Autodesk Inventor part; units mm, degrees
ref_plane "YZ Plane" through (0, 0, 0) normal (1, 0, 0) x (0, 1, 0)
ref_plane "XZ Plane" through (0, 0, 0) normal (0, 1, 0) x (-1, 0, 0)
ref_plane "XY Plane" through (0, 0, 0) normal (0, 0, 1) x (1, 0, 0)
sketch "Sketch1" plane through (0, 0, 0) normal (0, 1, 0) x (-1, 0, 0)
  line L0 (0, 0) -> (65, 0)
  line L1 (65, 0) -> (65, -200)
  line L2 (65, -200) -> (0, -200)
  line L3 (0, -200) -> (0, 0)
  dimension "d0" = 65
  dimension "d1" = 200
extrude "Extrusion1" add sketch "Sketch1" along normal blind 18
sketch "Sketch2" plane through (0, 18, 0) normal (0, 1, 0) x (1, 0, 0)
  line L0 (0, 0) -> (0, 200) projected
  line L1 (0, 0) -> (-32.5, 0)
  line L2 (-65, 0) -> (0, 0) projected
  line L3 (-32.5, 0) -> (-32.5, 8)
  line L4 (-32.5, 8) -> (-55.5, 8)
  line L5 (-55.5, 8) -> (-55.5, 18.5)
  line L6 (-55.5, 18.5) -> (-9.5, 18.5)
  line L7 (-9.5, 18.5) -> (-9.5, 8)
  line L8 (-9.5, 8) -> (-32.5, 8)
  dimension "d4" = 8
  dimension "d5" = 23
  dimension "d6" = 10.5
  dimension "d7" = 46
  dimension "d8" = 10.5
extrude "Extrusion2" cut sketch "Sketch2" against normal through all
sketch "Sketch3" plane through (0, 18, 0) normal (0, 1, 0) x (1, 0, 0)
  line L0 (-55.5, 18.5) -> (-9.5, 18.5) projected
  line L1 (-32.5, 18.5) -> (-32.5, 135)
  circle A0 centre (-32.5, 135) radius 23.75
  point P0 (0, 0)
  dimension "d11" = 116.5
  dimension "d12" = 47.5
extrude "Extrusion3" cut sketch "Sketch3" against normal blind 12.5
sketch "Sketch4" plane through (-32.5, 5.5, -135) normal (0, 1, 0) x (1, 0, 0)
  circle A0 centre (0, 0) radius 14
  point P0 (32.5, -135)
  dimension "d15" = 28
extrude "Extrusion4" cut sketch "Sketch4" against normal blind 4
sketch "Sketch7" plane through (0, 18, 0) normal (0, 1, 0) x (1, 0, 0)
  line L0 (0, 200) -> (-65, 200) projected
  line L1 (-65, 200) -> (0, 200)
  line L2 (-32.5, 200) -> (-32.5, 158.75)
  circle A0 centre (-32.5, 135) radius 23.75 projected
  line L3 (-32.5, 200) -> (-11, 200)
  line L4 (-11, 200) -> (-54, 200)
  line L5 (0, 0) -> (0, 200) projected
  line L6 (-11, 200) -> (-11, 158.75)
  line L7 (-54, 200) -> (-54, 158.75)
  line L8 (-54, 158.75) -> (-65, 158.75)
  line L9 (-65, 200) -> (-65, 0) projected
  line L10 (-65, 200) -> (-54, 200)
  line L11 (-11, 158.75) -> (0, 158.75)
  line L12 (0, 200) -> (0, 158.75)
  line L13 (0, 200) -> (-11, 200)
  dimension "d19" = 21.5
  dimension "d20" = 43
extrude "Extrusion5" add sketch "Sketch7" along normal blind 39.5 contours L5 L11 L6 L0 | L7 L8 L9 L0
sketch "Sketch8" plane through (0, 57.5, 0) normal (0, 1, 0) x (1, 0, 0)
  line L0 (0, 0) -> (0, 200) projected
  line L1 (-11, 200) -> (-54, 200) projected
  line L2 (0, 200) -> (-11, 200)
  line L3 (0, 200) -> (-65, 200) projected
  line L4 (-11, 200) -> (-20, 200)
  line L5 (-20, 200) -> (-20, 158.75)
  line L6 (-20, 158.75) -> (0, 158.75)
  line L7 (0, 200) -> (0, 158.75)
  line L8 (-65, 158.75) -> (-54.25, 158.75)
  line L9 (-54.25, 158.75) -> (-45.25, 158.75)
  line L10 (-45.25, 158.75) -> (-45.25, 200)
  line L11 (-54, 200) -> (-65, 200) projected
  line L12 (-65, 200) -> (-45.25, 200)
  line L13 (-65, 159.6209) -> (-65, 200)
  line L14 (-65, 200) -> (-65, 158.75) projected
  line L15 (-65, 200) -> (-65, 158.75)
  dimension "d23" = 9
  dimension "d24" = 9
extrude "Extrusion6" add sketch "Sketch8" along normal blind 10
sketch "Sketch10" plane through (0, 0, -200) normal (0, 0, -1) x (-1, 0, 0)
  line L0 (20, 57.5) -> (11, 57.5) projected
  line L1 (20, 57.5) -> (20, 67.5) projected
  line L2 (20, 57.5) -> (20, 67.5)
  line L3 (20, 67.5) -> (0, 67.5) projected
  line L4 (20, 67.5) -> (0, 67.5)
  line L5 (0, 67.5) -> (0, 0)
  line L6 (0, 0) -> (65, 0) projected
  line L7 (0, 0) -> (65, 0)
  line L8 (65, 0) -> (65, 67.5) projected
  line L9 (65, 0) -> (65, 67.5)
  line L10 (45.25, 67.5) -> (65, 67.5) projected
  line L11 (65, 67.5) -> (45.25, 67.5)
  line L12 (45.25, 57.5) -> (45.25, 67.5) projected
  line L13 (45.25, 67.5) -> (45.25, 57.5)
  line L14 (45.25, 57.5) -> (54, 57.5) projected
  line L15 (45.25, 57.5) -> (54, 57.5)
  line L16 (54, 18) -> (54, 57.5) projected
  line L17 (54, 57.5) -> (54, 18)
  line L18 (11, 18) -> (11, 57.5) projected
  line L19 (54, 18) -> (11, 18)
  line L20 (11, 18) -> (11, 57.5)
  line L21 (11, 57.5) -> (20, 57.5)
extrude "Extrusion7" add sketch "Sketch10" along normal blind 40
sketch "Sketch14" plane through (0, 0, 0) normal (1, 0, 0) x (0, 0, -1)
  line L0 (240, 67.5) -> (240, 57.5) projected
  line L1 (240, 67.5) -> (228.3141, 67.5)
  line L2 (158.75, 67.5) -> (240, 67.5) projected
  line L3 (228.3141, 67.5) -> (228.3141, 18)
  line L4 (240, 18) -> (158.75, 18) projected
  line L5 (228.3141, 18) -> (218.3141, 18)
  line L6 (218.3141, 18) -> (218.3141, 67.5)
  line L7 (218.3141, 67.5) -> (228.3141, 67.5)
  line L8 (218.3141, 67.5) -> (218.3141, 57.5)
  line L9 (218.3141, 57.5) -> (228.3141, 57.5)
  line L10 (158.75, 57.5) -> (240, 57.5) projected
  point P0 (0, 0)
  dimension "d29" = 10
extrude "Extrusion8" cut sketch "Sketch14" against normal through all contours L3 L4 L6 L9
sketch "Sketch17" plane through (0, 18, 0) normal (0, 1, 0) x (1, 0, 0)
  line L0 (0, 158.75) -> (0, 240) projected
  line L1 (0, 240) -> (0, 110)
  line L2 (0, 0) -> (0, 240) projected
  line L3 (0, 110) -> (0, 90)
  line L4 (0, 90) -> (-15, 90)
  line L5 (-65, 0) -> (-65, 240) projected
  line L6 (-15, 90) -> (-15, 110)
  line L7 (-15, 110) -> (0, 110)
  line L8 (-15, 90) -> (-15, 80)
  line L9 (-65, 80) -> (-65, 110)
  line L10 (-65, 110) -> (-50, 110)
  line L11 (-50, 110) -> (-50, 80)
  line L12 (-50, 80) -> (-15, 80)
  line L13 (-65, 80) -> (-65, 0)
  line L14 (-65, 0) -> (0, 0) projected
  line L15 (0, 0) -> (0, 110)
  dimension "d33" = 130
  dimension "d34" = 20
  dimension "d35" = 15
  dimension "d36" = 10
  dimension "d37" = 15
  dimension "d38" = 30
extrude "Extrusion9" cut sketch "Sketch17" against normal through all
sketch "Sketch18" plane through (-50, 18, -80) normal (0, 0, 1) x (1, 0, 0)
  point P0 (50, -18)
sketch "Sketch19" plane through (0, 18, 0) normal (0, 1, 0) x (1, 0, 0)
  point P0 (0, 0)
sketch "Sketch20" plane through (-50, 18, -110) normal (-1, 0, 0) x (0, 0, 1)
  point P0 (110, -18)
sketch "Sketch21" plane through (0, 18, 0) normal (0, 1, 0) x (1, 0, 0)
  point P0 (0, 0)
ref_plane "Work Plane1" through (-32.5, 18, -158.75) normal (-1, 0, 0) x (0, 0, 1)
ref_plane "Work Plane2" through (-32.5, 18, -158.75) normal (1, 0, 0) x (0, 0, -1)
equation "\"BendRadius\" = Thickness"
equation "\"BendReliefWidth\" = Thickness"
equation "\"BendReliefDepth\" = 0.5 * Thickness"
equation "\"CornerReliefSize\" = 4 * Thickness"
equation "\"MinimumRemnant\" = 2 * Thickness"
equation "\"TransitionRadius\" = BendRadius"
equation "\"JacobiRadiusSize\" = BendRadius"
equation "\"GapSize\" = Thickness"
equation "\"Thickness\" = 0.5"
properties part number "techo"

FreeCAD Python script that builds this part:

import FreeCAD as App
import Part
import Sketcher


def add_polygon(sketch, points):
    """Adds a closed chain of lines whose ends are joined by coincident constraints."""
    first, n = sketch.GeometryCount, len(points)
    for a, b in zip(points, points[1:] + points[:1]):
        sketch.addGeometry(Part.LineSegment(App.Vector(*a, 0), App.Vector(*b, 0)), False)
    for i in range(n):
        sketch.addConstraint(Sketcher.Constraint("Coincident", first + i, 2, first + (i + 1) % n, 1))

doc = App.newDocument("Part")
body = doc.addObject("PartDesign::Body", "Body")

# Sketch on XZ plane
sketch1 = body.newObject("Sketcher::SketchObject", "Sketch")
sketch1.AttachmentSupport = (doc.getObject("XZ_Plane"), [""])
sketch1.MapMode = "FlatFace"
add_polygon(sketch1, [(-65, 0), (0, 0), (0, -200), (-65, -200)])  # lines 0-3
sketch1.addConstraint([
    Sketcher.Constraint("Horizontal", 0),
    Sketcher.Constraint("Vertical", 1),
    Sketcher.Constraint("Horizontal", 2),
    Sketcher.Constraint("Vertical", 3),
    Sketcher.Constraint("Coincident", 0, 2, -1, 1),
    Sketcher.Constraint("DistanceX", 0, 1, 0, 2, 65.0),
    Sketcher.Constraint("DistanceY", 1, 2, 1, 1, 200.0),
])
pad1 = body.newObject("PartDesign::Pad", "Pad")
pad1.Profile = sketch1
pad1.Length = 18
pad1.Reversed = True

# Sketch on XZ plane
sketch2 = body.newObject("Sketcher::SketchObject", "Sketch001")
sketch2.AttachmentSupport = (doc.getObject("XZ_Plane"), [""])
sketch2.MapMode = "FlatFace"
sketch2.AttachmentOffset = App.Placement(App.Vector(0, 0, -18), App.Rotation())
add_polygon(sketch2, [(-56, -8), (-10, -8), (-10, -18), (-56, -18)])  # lines 0-3
sketch2.addConstraint([
    Sketcher.Constraint("Horizontal", 0),
    Sketcher.Constraint("Vertical", 1),
    Sketcher.Constraint("Horizontal", 2),
    Sketcher.Constraint("Vertical", 3),
    Sketcher.Constraint("DistanceX", 0, 1, 0, 2, 46.0),
    Sketcher.Constraint("DistanceY", 1, 2, 1, 1, 10.5),
    Sketcher.Constraint("DistanceY", 0, 2, -1, 1, 8.0),
    Sketcher.Constraint("DistanceX", 0, 2, -1, 1, 9.5),
])
pocket1 = body.newObject("PartDesign::Pocket", "Pocket")
pocket1.Profile = sketch2
pocket1.Type = "ThroughAll"
pocket1.Reversed = True

# Sketch on XZ plane
sketch3 = body.newObject("Sketcher::SketchObject", "Sketch002")
sketch3.AttachmentSupport = (doc.getObject("XZ_Plane"), [""])
sketch3.MapMode = "FlatFace"
sketch3.AttachmentOffset = App.Placement(App.Vector(0, 0, -18), App.Rotation())
sketch3.addGeometry(Part.Circle(App.Vector(-32, -135, 0), App.Vector(0, 0, 1), 24), False)
sketch3.addConstraint([
    Sketcher.Constraint("Diameter", 0, 47.5),
    Sketcher.Constraint("DistanceY", 0, 3, -1, 1, 135.0),
    Sketcher.Constraint("DistanceX", 0, 3, -1, 1, 32.5),
])
pocket2 = body.newObject("PartDesign::Pocket", "Pocket001")
pocket2.Profile = sketch3
pocket2.Length = 12.5
pocket2.Reversed = True

# Sketch on XZ plane
sketch4 = body.newObject("Sketcher::SketchObject", "Sketch003")
sketch4.AttachmentSupport = (doc.getObject("XZ_Plane"), [""])
sketch4.MapMode = "FlatFace"
sketch4.AttachmentOffset = App.Placement(App.Vector(0, 0, -5.5), App.Rotation())
sketch4.addGeometry(Part.Circle(App.Vector(-32, -135, 0), App.Vector(0, 0, 1), 14), False)
sketch4.addConstraint([
    Sketcher.Constraint("Diameter", 0, 28.0),
    Sketcher.Constraint("DistanceY", 0, 3, -1, 1, 135.0),
    Sketcher.Constraint("DistanceX", 0, 3, -1, 1, 32.5),
])
pocket3 = body.newObject("PartDesign::Pocket", "Pocket002")
pocket3.Profile = sketch4
pocket3.Length = 4
pocket3.Reversed = True

# Sketch on XZ plane
sketch5 = body.newObject("Sketcher::SketchObject", "Sketch004")
sketch5.AttachmentSupport = (doc.getObject("XZ_Plane"), [""])
sketch5.MapMode = "FlatFace"
sketch5.AttachmentOffset = App.Placement(App.Vector(0, 0, -18), App.Rotation())
add_polygon(sketch5, [(0, -159), (0, -200), (-11, -200), (-11, -159)])  # lines 0-3
add_polygon(sketch5, [(-54, -159), (-54, -200), (-65, -200), (-65, -159)])  # lines 4-7
sketch5.addConstraint([
    Sketcher.Constraint("Vertical", 0),
    Sketcher.Constraint("Horizontal", 1),
    Sketcher.Constraint("Vertical", 2),
    Sketcher.Constraint("Horizontal", 3),
    Sketcher.Constraint("Vertical", 4),
    Sketcher.Constraint("Horizontal", 5),
    Sketcher.Constraint("Vertical", 6),
    Sketcher.Constraint("Horizontal", 7),
    Sketcher.Constraint("PointOnObject", 0, 2, -2),
    Sketcher.Constraint("Horizontal", 1, 2, 4, 2),
    Sketcher.Constraint("Horizontal", 3, 2, 6, 2),
    Sketcher.Constraint("Equal", 3, 5),
    Sketcher.Constraint("DistanceX", 4, 2, 1, 2, 43.0),
    Sketcher.Constraint("DistanceX", 1, 2, 1, 1, 11.0),
    Sketcher.Constraint("DistanceY", 0, 2, -1, 1, 200.0),
    Sketcher.Constraint("DistanceY", 0, 2, 0, 1, 41.25),
])
pad2 = body.newObject("PartDesign::Pad", "Pad001")
pad2.Profile = sketch5
pad2.Length = 39.5
pad2.Reversed = True

# Sketch on XZ plane
sketch6 = body.newObject("Sketcher::SketchObject", "Sketch005")
sketch6.AttachmentSupport = (doc.getObject("XZ_Plane"), [""])
sketch6.MapMode = "FlatFace"
sketch6.AttachmentOffset = App.Placement(App.Vector(0, 0, -57.5), App.Rotation())
add_polygon(sketch6, [(-20, -159), (0, -159), (0, -200), (-20, -200)])  # lines 0-3
add_polygon(sketch6, [(-45, -159), (-45, -200), (-65, -200), (-65, -159)])  # lines 4-7
sketch6.addConstraint([
    Sketcher.Constraint("Horizontal", 0),
    Sketcher.Constraint("Vertical", 1),
    Sketcher.Constraint("Horizontal", 2),
    Sketcher.Constraint("Vertical", 3),
    Sketcher.Constraint("Vertical", 4),
    Sketcher.Constraint("Horizontal", 5),
    Sketcher.Constraint("Vertical", 6),
    Sketcher.Constraint("Horizontal", 7),
    Sketcher.Constraint("PointOnObject", 0, 2, -2),
    Sketcher.Constraint("Horizontal", 2, 2, 4, 2),
    Sketcher.Constraint("Horizontal", 3, 2, 6, 2),
    Sketcher.Constraint("DistanceX", 0, 1, 0, 2, 20.0),
    Sketcher.Constraint("DistanceY", 1, 2, -1, 1, 200.0),
    Sketcher.Constraint("DistanceX", 5, 2, -1, 1, 65.0),
    Sketcher.Constraint("DistanceX", 5, 2, 5, 1, 19.75),
    Sketcher.Constraint("DistanceY", 1, 2, 1, 1, 41.25),
])
pad3 = body.newObject("PartDesign::Pad", "Pad002")
pad3.Profile = sketch6
pad3.Length = 10
pad3.Reversed = True

# Sketch on XY plane
sketch7 = body.newObject("Sketcher::SketchObject", "Sketch006")
sketch7.AttachmentSupport = (doc.getObject("XY_Plane"), [""])
sketch7.MapMode = "FlatFace"
sketch7.AttachmentOffset = App.Placement(App.Vector(0, 0, -200), App.Rotation())
add_polygon(sketch7, [(-11, 58), (-20, 58), (-20, 68), (0, 68), (0, 0), (-65, 0), (-65, 68), (-45, 68), (-45, 58), (-54, 58), (-54, 18), (-11, 18)])  # lines 0-11
sketch7.addConstraint([
    Sketcher.Constraint("Horizontal", 0),
    Sketcher.Constraint("Vertical", 1),
    Sketcher.Constraint("Horizontal", 2),
    Sketcher.Constraint("Vertical", 3),
    Sketcher.Constraint("Horizontal", 4),
    Sketcher.Constraint("Vertical", 5),
    Sketcher.Constraint("Horizontal", 6),
    Sketcher.Constraint("Vertical", 7),
    Sketcher.Constraint("Horizontal", 8),
    Sketcher.Constraint("Vertical", 9),
    Sketcher.Constraint("Horizontal", 10),
    Sketcher.Constraint("Vertical", 11),
    Sketcher.Constraint("Coincident", 3, 2, -1, 1),
    Sketcher.Constraint("Horizontal", 2, 2, 5, 2),
    Sketcher.Constraint("Horizontal", 0, 2, 7, 2),
    Sketcher.Constraint("DistanceX", 0, 2, 0, 1, 9.0),
    Sketcher.Constraint("DistanceX", 2, 1, 2, 2, 20.0),
    Sketcher.Constraint("DistanceX", 4, 2, 4, 1, 65.0),
    Sketcher.Constraint("DistanceX", 10, 1, 10, 2, 43.0),
    Sketcher.Constraint("DistanceY", 1, 1, 1, 2, 10.0),
    Sketcher.Constraint("DistanceY", 3, 2, 3, 1, 67.5),
    Sketcher.Constraint("DistanceY", 9, 2, 9, 1, 39.5),
    Sketcher.Constraint("DistanceX", 6, 1, 6, 2, 19.75),
])
pad4 = body.newObject("PartDesign::Pad", "Pad003")
pad4.Profile = sketch7
pad4.Length = 40
pad4.Reversed = True

# Sketch on YZ plane
sketch8 = body.newObject("Sketcher::SketchObject", "Sketch007")
sketch8.AttachmentSupport = (doc.getObject("YZ_Plane"), [""])
sketch8.MapMode = "FlatFace"
add_polygon(sketch8, [(18, -228), (58, -228), (58, -218), (18, -218)])  # lines 0-3
sketch8.addConstraint([
    Sketcher.Constraint("Horizontal", 0),
    Sketcher.Constraint("Vertical", 1),
    Sketcher.Constraint("Horizontal", 2),
    Sketcher.Constraint("Vertical", 3),
    Sketcher.Constraint("DistanceY", 1, 1, 1, 2, 10.0),
    Sketcher.Constraint("DistanceX", 0, 1, 0, 2, 39.5),
    Sketcher.Constraint("DistanceX", -1, 1, 2, 2, 18.0),
    Sketcher.Constraint("DistanceY", 0, 2, -1, 1, 228.314),
])
pocket4 = body.newObject("PartDesign::Pocket", "Pocket003")
pocket4.Profile = sketch8
pocket4.Type = "ThroughAll"

# Sketch on XZ plane
sketch9 = body.newObject("Sketcher::SketchObject", "Sketch008")
sketch9.AttachmentSupport = (doc.getObject("XZ_Plane"), [""])
sketch9.MapMode = "FlatFace"
sketch9.AttachmentOffset = App.Placement(App.Vector(0, 0, -18), App.Rotation())
add_polygon(sketch9, [(-65, 0), (0, 0), (0, -110), (-15, -110), (-15, -80), (-50, -80), (-50, -110), (-65, -110)])  # lines 0-7
sketch9.addConstraint([
    Sketcher.Constraint("Horizontal", 0),
    Sketcher.Constraint("Vertical", 1),
    Sketcher.Constraint("Horizontal", 2),
    Sketcher.Constraint("Vertical", 3),
    Sketcher.Constraint("Horizontal", 4),
    Sketcher.Constraint("Vertical", 5),
    Sketcher.Constraint("Horizontal", 6),
    Sketcher.Constraint("Vertical", 7),
    Sketcher.Constraint("Coincident", 0, 2, -1, 1),
    Sketcher.Constraint("Horizontal", 2, 2, 5, 2),
    Sketcher.Constraint("Equal", 2, 6),
    Sketcher.Constraint("DistanceX", 2, 2, 2, 1, 15.0),
    Sketcher.Constraint("DistanceY", 3, 1, 3, 2, 30.0),
    Sketcher.Constraint("DistanceX", 0, 1, 0, 2, 65.0),
    Sketcher.Constraint("DistanceY", 1, 2, 1, 1, 110.0),
])
pocket5 = body.newObject("PartDesign::Pocket", "Pocket004")
pocket5.Profile = sketch9
pocket5.Type = "ThroughAll"
pocket5.Reversed = True

doc.recompute()
